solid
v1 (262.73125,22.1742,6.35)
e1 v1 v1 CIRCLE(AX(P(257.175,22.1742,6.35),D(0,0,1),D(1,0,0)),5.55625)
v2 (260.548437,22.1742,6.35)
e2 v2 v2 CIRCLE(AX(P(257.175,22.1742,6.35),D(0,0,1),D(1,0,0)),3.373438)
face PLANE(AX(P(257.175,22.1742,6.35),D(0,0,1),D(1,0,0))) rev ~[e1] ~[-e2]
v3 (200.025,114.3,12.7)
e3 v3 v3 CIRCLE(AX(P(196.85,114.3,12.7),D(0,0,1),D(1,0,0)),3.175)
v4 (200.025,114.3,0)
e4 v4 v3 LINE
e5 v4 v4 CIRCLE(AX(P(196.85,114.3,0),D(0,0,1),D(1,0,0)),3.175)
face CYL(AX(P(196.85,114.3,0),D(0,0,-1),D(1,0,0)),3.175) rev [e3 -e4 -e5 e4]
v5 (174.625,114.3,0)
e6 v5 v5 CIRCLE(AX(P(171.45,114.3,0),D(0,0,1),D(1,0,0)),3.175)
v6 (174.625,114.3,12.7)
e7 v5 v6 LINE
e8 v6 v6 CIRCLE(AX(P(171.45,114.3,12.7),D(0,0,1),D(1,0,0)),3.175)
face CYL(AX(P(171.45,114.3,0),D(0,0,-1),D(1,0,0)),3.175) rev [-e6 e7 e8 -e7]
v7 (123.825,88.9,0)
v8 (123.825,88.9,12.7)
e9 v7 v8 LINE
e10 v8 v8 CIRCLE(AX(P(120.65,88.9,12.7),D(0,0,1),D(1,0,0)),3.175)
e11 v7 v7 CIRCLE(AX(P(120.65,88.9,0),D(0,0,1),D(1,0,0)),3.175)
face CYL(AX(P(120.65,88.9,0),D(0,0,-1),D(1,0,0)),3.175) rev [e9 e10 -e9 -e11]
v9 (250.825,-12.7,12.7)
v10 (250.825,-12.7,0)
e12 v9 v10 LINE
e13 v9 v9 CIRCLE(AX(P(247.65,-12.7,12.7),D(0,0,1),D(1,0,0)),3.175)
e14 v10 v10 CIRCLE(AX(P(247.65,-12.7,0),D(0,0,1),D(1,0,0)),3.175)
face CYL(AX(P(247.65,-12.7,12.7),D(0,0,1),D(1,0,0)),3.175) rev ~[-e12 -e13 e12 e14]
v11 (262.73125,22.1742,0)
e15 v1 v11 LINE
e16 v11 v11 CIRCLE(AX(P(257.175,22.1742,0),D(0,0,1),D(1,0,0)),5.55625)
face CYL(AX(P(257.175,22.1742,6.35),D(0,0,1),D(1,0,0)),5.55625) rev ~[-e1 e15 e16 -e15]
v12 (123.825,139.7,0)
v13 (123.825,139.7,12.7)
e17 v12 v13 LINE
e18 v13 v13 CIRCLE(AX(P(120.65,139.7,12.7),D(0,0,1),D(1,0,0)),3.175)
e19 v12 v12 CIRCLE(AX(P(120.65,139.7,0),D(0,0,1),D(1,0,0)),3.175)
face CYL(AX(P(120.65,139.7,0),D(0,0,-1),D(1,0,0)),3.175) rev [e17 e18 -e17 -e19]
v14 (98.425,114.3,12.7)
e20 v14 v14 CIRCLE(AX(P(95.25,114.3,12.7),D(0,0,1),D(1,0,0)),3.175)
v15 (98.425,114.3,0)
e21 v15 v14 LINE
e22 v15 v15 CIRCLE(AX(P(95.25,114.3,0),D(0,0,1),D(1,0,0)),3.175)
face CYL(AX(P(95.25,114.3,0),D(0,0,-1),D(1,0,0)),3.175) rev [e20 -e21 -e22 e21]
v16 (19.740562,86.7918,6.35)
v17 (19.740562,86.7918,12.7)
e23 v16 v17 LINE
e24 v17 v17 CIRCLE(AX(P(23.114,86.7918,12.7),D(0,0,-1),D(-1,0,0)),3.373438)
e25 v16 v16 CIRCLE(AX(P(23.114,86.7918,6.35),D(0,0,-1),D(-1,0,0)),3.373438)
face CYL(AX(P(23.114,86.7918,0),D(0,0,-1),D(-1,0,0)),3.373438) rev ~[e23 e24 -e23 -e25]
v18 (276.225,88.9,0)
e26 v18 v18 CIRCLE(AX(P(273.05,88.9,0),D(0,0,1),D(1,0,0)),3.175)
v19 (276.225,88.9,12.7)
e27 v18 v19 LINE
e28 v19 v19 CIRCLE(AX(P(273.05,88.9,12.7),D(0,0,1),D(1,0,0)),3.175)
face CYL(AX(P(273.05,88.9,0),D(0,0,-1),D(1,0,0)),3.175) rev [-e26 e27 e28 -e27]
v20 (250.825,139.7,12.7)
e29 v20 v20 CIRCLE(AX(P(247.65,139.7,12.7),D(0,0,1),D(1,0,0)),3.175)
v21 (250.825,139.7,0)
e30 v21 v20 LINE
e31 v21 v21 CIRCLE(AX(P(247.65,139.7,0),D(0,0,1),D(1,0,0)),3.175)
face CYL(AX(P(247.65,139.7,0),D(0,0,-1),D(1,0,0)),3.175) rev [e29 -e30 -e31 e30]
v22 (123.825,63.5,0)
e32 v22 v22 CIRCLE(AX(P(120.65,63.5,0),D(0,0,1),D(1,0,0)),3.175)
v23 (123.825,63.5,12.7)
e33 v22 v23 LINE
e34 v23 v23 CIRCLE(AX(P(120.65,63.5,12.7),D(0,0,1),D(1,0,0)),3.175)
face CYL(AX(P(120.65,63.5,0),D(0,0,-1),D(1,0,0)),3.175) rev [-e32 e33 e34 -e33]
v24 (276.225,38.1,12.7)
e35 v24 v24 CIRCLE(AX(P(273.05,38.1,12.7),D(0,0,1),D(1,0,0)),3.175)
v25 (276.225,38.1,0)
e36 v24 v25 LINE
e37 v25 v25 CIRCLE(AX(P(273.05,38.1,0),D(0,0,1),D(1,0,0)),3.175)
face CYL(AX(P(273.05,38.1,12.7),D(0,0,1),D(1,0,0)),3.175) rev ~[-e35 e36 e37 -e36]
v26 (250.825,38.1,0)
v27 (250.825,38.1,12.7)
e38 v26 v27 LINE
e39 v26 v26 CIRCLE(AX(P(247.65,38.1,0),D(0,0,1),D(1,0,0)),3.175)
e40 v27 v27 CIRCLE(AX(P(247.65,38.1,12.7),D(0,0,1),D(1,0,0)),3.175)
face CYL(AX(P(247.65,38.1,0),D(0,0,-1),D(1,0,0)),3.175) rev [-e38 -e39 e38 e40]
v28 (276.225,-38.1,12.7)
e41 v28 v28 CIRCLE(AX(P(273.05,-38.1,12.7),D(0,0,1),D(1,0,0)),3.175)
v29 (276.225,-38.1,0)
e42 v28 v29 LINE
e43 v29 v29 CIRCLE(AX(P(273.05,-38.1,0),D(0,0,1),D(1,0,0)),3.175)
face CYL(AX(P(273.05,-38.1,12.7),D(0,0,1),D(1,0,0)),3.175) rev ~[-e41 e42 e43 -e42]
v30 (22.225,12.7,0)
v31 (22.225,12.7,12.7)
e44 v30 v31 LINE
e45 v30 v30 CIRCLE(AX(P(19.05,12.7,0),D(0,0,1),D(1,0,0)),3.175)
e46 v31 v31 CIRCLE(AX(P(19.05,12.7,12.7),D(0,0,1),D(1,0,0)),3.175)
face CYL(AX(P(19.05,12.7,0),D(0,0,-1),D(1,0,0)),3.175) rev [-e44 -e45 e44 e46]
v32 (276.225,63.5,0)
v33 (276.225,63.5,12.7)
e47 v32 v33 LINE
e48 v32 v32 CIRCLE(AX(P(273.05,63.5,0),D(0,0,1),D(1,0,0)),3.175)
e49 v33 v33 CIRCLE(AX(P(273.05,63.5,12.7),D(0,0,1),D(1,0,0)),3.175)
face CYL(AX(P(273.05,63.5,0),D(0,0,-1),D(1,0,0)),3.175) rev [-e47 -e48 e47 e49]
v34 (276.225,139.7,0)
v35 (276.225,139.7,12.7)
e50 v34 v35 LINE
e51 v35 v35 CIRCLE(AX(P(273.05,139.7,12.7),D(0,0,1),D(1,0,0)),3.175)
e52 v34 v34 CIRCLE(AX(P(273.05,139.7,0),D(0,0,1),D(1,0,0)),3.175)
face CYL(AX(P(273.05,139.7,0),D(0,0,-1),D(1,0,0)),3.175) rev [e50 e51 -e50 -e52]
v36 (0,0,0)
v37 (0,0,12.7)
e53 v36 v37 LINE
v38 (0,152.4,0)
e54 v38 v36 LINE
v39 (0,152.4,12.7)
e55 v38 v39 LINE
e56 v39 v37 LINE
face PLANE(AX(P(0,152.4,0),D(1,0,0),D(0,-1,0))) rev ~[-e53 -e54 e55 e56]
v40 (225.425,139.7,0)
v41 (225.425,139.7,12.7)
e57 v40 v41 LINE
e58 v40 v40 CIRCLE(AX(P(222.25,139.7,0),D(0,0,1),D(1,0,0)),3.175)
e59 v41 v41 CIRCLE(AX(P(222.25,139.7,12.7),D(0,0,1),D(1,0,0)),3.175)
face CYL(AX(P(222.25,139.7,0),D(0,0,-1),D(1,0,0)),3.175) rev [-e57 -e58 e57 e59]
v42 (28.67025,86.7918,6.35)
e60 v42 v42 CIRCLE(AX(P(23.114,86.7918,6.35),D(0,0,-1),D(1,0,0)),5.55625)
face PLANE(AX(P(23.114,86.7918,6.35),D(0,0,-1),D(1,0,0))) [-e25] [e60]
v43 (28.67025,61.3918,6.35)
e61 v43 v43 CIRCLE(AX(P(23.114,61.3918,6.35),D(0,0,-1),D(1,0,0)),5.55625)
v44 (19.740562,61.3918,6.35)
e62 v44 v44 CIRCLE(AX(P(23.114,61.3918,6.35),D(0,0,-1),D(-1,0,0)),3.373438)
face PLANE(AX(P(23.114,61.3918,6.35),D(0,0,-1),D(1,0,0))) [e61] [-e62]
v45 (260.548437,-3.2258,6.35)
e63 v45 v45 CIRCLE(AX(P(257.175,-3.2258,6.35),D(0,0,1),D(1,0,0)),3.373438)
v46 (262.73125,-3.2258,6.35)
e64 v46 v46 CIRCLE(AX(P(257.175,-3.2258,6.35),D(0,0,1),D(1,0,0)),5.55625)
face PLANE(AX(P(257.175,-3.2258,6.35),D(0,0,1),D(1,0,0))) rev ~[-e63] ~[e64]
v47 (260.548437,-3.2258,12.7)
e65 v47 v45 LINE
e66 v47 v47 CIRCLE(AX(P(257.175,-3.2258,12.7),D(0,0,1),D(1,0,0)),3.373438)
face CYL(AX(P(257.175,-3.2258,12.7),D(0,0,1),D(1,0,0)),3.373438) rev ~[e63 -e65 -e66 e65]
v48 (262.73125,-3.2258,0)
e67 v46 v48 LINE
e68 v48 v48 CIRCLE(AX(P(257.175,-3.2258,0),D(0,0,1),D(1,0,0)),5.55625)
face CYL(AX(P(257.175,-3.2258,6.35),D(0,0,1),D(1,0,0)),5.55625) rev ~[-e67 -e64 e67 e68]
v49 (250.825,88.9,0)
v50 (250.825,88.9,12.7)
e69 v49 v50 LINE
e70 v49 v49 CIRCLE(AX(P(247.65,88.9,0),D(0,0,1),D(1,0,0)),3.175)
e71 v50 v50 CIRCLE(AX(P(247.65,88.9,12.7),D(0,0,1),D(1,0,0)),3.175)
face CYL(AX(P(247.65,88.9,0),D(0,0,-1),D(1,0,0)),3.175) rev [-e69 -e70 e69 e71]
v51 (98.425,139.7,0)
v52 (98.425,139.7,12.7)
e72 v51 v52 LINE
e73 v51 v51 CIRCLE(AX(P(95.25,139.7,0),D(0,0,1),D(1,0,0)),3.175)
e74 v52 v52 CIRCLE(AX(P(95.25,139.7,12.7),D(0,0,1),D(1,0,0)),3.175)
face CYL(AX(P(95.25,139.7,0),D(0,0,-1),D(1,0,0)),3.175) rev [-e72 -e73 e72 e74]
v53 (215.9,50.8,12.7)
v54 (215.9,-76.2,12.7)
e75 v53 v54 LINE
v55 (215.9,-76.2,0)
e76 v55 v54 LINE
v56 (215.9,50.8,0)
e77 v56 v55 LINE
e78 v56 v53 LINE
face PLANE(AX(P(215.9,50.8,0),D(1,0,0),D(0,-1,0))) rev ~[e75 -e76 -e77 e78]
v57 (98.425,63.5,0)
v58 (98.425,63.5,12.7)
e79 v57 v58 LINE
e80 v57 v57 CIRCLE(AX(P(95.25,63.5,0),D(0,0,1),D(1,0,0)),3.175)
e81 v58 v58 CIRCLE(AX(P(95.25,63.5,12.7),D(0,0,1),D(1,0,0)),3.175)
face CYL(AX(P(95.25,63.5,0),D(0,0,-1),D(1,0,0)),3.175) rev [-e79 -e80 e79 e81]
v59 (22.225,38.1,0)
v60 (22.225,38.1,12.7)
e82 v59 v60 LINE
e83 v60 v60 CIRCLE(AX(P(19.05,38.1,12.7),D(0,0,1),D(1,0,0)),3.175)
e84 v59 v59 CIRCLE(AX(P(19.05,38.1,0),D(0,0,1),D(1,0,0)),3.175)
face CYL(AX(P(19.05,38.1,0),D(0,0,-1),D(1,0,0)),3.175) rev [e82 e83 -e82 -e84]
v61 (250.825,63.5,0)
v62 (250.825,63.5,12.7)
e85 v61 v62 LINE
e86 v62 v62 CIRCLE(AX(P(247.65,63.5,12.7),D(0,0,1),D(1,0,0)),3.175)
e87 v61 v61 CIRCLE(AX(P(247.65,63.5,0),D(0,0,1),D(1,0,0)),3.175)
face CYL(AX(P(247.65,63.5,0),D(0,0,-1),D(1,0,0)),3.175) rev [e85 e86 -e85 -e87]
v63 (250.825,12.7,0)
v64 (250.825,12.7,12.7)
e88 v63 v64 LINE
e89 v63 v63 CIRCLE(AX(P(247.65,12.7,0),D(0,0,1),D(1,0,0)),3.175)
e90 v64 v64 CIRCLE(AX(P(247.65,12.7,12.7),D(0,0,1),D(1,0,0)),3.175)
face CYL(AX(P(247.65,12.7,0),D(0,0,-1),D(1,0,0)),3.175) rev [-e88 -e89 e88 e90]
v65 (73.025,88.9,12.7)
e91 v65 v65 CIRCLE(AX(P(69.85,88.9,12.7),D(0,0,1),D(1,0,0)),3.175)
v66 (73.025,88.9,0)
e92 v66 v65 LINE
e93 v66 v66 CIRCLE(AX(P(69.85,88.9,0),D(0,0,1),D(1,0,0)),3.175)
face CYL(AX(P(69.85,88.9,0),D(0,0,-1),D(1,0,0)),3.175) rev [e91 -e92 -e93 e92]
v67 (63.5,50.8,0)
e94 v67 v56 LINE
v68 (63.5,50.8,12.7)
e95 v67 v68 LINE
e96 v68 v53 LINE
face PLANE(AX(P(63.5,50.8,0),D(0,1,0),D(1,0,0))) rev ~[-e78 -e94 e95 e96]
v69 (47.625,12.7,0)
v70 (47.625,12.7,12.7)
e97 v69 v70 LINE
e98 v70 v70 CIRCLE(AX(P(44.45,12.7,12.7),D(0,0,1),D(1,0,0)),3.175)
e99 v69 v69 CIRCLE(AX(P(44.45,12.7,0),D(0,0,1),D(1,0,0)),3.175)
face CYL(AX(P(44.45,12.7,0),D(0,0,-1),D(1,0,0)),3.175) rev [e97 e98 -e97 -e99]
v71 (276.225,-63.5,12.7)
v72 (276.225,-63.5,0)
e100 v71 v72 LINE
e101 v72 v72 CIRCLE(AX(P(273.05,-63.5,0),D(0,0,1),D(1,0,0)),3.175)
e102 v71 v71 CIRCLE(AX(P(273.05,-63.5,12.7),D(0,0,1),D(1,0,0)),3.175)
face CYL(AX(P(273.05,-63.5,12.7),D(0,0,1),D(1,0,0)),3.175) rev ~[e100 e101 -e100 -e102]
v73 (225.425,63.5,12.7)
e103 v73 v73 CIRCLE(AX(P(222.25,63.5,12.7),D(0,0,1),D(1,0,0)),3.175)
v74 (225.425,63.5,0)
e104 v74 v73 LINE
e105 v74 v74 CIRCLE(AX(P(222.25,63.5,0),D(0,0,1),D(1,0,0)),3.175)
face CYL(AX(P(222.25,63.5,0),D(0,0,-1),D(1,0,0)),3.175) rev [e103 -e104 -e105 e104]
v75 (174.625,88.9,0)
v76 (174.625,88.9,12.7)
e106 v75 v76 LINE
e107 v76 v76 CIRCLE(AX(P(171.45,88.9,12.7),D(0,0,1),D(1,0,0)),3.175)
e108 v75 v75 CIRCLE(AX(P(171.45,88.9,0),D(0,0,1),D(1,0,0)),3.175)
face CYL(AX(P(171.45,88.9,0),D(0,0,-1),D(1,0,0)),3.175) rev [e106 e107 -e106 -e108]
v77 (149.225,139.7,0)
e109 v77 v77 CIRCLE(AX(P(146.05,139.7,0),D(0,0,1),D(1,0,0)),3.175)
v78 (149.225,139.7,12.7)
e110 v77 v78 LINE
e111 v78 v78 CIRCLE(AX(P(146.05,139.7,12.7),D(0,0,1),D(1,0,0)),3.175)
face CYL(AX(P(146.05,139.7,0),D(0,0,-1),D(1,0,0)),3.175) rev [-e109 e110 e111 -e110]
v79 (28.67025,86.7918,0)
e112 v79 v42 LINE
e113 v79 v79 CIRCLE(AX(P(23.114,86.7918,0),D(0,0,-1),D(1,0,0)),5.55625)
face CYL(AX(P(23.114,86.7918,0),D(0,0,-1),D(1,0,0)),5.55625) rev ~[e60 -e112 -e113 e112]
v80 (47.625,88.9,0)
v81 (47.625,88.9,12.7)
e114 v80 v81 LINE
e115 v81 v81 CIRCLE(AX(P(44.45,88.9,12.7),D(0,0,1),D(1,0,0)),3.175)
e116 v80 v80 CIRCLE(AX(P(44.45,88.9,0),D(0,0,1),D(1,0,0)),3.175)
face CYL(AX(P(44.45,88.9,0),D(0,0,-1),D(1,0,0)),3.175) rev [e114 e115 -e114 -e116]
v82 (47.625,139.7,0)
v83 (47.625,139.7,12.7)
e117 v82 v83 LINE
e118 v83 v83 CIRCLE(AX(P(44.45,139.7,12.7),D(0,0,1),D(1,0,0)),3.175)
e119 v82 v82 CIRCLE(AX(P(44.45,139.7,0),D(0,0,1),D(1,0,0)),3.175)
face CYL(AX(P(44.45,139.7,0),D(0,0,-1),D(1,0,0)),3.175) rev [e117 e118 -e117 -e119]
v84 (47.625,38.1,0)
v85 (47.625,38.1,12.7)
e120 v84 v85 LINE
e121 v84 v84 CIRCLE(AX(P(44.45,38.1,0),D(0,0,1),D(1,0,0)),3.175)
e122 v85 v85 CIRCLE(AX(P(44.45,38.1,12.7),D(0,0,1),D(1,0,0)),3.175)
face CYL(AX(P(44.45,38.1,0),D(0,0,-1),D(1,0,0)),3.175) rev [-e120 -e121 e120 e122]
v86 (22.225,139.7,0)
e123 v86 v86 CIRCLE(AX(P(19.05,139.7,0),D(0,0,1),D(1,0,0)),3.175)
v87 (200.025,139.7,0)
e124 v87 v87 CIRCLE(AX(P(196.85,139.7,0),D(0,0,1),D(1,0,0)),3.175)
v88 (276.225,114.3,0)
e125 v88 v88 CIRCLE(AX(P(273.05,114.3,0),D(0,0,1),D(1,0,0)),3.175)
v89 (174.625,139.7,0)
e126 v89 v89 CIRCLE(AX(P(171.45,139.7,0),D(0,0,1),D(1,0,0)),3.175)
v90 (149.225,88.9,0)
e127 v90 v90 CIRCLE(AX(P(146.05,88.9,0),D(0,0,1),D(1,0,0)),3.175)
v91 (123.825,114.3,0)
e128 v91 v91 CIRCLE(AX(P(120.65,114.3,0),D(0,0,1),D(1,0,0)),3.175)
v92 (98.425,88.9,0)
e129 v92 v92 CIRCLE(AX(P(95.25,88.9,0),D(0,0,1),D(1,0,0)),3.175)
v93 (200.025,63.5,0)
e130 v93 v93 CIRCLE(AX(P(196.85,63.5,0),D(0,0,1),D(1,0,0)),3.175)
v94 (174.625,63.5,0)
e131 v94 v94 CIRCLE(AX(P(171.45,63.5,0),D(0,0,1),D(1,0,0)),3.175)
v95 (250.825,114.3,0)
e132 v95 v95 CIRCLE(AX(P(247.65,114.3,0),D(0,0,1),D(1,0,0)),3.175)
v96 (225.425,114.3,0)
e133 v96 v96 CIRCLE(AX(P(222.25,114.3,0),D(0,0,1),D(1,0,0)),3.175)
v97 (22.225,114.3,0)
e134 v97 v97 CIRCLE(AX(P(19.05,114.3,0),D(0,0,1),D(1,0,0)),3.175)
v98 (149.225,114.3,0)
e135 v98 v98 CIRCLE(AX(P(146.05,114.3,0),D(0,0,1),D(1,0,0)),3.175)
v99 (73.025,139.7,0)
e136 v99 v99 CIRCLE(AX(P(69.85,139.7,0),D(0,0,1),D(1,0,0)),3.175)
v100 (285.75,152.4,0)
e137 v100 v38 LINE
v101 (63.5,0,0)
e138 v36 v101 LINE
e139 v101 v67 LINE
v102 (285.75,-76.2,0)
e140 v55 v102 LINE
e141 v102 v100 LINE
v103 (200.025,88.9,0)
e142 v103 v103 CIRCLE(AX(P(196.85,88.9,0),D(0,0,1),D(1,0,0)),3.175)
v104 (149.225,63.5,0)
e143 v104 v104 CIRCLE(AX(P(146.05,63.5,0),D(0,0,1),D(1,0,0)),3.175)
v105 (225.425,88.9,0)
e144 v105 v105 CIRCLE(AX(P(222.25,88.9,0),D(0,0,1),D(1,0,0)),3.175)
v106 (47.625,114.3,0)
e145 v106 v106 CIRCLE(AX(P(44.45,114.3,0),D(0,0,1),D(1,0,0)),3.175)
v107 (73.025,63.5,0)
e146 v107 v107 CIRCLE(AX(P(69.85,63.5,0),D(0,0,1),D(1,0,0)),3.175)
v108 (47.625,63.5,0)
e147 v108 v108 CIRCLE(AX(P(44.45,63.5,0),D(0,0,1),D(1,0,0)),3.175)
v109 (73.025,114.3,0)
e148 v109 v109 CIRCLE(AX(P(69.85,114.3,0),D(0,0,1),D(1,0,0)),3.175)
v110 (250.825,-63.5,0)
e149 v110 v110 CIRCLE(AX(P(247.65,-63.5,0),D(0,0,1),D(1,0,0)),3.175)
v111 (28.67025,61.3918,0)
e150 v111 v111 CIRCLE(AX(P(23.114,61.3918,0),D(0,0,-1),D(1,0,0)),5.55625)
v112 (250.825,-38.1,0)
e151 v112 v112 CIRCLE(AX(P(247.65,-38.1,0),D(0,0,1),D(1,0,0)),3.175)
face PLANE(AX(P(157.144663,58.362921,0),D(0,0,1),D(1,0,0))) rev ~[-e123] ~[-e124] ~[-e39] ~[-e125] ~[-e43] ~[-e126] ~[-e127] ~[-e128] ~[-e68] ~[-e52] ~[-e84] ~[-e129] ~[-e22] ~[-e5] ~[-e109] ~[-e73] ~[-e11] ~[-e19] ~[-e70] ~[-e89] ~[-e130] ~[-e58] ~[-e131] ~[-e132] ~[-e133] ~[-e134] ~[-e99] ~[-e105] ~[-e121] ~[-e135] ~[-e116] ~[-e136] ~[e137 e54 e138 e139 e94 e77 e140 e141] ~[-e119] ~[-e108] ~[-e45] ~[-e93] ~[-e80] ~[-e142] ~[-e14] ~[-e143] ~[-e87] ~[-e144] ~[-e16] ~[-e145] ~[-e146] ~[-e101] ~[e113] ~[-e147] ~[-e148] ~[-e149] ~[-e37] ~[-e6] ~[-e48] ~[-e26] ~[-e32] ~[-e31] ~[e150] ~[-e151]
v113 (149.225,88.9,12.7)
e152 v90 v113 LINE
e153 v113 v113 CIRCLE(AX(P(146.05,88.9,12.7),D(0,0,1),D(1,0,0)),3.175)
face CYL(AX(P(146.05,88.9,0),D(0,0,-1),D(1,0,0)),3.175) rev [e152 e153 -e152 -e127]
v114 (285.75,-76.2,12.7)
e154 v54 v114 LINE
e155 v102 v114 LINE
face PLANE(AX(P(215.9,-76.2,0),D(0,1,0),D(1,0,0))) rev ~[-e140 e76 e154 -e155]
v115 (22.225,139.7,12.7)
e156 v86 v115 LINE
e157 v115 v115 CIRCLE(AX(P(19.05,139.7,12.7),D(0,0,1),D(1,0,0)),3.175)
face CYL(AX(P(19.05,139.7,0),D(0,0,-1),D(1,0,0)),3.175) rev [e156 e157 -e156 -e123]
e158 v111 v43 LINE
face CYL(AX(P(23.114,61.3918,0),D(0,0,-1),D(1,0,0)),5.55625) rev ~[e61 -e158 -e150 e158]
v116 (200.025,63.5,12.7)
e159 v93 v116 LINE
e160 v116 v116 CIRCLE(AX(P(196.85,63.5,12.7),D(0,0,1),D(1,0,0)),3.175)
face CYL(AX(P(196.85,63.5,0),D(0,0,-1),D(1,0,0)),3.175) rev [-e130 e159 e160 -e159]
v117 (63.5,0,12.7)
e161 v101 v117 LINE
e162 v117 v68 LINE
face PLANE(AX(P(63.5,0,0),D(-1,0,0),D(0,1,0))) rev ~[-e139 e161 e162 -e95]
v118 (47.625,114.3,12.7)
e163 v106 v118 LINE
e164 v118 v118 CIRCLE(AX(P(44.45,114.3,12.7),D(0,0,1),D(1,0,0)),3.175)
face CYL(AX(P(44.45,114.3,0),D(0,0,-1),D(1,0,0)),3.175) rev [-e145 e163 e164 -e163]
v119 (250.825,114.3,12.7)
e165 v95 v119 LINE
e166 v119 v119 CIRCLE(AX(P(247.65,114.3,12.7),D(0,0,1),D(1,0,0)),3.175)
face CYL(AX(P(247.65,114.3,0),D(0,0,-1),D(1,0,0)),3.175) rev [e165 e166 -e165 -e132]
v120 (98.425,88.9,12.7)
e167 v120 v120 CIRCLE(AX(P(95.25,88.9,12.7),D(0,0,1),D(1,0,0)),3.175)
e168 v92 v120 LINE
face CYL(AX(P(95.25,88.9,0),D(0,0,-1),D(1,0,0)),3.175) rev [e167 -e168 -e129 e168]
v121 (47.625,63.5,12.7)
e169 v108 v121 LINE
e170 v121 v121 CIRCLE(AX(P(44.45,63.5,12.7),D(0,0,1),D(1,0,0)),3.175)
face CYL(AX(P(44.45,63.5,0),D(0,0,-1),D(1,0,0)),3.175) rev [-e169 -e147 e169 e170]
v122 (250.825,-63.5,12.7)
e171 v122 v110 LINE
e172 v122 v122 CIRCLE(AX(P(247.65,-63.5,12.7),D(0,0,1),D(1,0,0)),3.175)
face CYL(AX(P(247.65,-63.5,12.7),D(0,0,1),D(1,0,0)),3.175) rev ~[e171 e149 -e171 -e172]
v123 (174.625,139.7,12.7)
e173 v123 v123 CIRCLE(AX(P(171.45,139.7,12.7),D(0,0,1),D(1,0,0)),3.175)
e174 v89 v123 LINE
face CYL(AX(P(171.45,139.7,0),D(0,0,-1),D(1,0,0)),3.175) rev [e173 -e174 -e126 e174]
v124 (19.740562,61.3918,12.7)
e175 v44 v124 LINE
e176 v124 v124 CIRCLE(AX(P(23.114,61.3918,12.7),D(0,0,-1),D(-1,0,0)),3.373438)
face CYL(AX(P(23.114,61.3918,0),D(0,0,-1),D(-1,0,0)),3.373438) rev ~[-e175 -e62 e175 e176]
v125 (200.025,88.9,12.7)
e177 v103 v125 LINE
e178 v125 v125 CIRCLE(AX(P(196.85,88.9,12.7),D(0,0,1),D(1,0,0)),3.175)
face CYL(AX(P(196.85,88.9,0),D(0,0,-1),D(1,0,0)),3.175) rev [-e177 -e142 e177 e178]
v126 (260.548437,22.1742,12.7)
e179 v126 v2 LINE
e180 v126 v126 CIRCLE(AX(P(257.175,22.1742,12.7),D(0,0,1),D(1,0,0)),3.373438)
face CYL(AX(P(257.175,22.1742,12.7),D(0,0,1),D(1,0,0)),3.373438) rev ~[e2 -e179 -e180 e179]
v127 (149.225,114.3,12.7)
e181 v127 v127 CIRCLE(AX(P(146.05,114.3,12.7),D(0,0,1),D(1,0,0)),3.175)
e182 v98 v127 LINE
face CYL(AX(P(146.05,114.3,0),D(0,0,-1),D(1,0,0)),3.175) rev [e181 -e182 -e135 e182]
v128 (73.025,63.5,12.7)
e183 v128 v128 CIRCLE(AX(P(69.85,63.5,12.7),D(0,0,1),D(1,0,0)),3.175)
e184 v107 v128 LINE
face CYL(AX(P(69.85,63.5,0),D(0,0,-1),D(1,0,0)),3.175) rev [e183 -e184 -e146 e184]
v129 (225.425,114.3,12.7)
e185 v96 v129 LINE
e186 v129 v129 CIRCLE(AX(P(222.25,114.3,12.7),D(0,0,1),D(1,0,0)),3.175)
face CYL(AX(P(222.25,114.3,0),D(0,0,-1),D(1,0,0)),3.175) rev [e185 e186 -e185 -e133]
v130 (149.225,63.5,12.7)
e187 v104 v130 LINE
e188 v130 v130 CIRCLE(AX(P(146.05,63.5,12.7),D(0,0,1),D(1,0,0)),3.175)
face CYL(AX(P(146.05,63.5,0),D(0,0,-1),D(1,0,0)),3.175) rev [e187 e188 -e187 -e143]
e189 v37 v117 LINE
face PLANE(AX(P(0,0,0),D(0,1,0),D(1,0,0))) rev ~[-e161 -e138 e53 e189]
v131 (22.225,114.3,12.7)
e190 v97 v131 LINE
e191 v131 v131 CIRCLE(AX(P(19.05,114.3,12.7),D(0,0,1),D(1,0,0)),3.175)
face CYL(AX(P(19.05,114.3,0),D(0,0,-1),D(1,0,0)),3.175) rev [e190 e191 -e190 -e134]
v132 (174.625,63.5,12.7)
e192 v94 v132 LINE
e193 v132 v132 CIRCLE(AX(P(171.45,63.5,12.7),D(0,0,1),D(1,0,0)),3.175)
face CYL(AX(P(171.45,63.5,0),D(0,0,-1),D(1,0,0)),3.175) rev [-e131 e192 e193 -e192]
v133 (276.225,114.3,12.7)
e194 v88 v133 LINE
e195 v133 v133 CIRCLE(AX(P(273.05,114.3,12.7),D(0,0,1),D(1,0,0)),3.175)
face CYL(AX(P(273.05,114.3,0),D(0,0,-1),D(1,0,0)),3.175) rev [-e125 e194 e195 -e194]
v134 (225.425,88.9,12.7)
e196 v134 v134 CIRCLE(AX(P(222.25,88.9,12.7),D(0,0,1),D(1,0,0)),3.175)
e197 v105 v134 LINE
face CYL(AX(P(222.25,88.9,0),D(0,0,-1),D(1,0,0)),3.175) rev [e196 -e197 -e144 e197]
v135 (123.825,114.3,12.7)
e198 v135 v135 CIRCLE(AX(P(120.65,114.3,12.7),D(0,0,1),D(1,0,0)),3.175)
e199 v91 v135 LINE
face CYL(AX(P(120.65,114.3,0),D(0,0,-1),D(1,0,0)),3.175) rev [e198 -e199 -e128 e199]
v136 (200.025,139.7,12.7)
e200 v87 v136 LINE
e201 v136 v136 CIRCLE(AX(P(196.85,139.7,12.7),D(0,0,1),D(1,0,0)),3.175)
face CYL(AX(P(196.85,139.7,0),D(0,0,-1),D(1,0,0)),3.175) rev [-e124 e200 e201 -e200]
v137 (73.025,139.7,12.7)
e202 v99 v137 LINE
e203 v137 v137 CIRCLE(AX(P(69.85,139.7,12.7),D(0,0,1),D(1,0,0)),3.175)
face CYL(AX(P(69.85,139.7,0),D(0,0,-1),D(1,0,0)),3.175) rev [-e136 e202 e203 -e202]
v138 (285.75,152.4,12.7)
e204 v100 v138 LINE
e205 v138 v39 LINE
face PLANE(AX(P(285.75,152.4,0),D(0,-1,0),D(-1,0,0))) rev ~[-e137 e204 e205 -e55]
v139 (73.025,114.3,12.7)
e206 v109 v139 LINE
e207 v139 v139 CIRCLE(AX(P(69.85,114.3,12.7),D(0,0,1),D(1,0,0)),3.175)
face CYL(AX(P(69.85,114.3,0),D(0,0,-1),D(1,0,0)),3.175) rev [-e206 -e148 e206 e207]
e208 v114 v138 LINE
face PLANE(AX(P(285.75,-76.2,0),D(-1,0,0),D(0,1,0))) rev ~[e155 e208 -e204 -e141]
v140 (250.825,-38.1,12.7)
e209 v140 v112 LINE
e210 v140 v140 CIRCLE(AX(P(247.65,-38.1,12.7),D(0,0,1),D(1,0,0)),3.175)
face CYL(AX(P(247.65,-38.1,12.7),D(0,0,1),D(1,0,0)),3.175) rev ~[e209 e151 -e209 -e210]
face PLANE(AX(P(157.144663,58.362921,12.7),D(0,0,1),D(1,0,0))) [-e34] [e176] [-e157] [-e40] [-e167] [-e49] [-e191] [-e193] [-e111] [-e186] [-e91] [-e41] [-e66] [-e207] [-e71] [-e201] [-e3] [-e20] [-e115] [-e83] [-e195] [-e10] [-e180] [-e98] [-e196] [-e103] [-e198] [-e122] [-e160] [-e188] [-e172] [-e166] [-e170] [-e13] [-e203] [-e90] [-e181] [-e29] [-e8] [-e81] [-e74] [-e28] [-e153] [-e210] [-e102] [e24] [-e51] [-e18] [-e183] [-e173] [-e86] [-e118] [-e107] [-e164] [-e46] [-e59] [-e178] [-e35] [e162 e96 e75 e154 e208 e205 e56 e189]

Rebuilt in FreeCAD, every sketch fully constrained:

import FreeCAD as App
import Part
import Sketcher
Q = App.Units.Quantity

doc = App.newDocument("Part")
body = doc.addObject("PartDesign::Body", "Body")

sketch1 = doc.addObject("Sketcher::SketchObject", "Sketch")
body.addObject(sketch1)
sketch1.AttachmentSupport = (doc.XY_Plane, [""])
sketch1.MapMode = "FlatFace"
sketch1.addGeometry([
    Part.LineSegment(App.Vector(0, 152.4, 0), App.Vector(0, 0, 0)),
    Part.LineSegment(App.Vector(0, 0, 0), App.Vector(63.5, 0, 0)),
    Part.LineSegment(App.Vector(63.5, 0, 0), App.Vector(63.5, 50.8, 0)),
    Part.LineSegment(App.Vector(63.5, 50.8, 0), App.Vector(215.9, 50.8, 0)),
    Part.LineSegment(App.Vector(215.9, 50.8, 0), App.Vector(215.9, -76.2, 0)),
    Part.LineSegment(App.Vector(215.9, -76.2, 0), App.Vector(285.75, -76.2, 0)),
    Part.LineSegment(App.Vector(285.75, -76.2, 0), App.Vector(285.75, 152.4, 0)),
    Part.LineSegment(App.Vector(285.75, 152.4, 0), App.Vector(0, 152.4, 0)),
    Part.Circle(App.Vector(19.05, 12.7, 0), App.Vector(0, 0, 1), 3.175),
    Part.Circle(App.Vector(44.45, 12.7, 0), App.Vector(0, 0, 1), 3.175),
    Part.Circle(App.Vector(19.05, 38.1, 0), App.Vector(0, 0, 1), 3.175),
    Part.Circle(App.Vector(44.45, 38.1, 0), App.Vector(0, 0, 1), 3.175),
    Part.Circle(App.Vector(44.45, 63.5, 0), App.Vector(0, 0, 1), 3.175),
    Part.Circle(App.Vector(69.85, 63.5, 0), App.Vector(0, 0, 1), 3.175),
    Part.Circle(App.Vector(95.25, 63.5, 0), App.Vector(0, 0, 1), 3.175),
    Part.Circle(App.Vector(120.65, 63.5, 0), App.Vector(0, 0, 1), 3.175),
    Part.Circle(App.Vector(247.65, 12.7, 0), App.Vector(0, 0, 1), 3.175),
    Part.Circle(App.Vector(247.65, 38.1, 0), App.Vector(0, 0, 1), 3.175),
    Part.Circle(App.Vector(146.05, 63.5, 0), App.Vector(0, 0, 1), 3.175),
    Part.Circle(App.Vector(171.45, 63.5, 0), App.Vector(0, 0, 1), 3.175),
    Part.Circle(App.Vector(196.85, 63.5, 0), App.Vector(0, 0, 1), 3.175),
    Part.Circle(App.Vector(222.25, 63.5, 0), App.Vector(0, 0, 1), 3.175),
    Part.Circle(App.Vector(247.65, 63.5, 0), App.Vector(0, 0, 1), 3.175),
    Part.Circle(App.Vector(273.05, 63.5, 0), App.Vector(0, 0, 1), 3.175),
    Part.Circle(App.Vector(44.45, 88.9, 0), App.Vector(0, 0, 1), 3.175),
    Part.Circle(App.Vector(69.85, 88.9, 0), App.Vector(0, 0, 1), 3.175),
    Part.Circle(App.Vector(95.25, 88.9, 0), App.Vector(0, 0, 1), 3.175),
    Part.Circle(App.Vector(120.65, 88.9, 0), App.Vector(0, 0, 1), 3.175),
    Part.Circle(App.Vector(19.05, 114.3, 0), App.Vector(0, 0, 1), 3.175),
    Part.Circle(App.Vector(44.45, 114.3, 0), App.Vector(0, 0, 1), 3.175),
    Part.Circle(App.Vector(69.85, 114.3, 0), App.Vector(0, 0, 1), 3.175),
    Part.Circle(App.Vector(19.05, 139.7, 0), App.Vector(0, 0, 1), 3.175),
    Part.Circle(App.Vector(44.45, 139.7, 0), App.Vector(0, 0, 1), 3.175),
    Part.Circle(App.Vector(69.85, 139.7, 0), App.Vector(0, 0, 1), 3.175),
    Part.Circle(App.Vector(95.25, 114.3, 0), App.Vector(0, 0, 1), 3.175),
    Part.Circle(App.Vector(120.65, 114.3, 0), App.Vector(0, 0, 1), 3.175),
    Part.Circle(App.Vector(95.25, 139.7, 0), App.Vector(0, 0, 1), 3.175),
    Part.Circle(App.Vector(120.65, 139.7, 0), App.Vector(0, 0, 1), 3.175),
    Part.Circle(App.Vector(146.05, 88.9, 0), App.Vector(0, 0, 1), 3.175),
    Part.Circle(App.Vector(171.45, 88.9, 0), App.Vector(0, 0, 1), 3.175),
    Part.Circle(App.Vector(196.85, 88.9, 0), App.Vector(0, 0, 1), 3.175),
    Part.Circle(App.Vector(222.25, 88.9, 0), App.Vector(0, 0, 1), 3.175),
    Part.Circle(App.Vector(247.65, 88.9, 0), App.Vector(0, 0, 1), 3.175),
    Part.Circle(App.Vector(273.05, 88.9, 0), App.Vector(0, 0, 1), 3.175),
    Part.Circle(App.Vector(146.05, 114.3, 0), App.Vector(0, 0, 1), 3.175),
    Part.Circle(App.Vector(171.45, 114.3, 0), App.Vector(0, 0, 1), 3.175),
    Part.Circle(App.Vector(196.85, 114.3, 0), App.Vector(0, 0, 1), 3.175),
    Part.Circle(App.Vector(146.05, 139.7, 0), App.Vector(0, 0, 1), 3.175),
    Part.Circle(App.Vector(171.45, 139.7, 0), App.Vector(0, 0, 1), 3.175),
    Part.Circle(App.Vector(196.85, 139.7, 0), App.Vector(0, 0, 1), 3.175),
    Part.Circle(App.Vector(222.25, 114.3, 0), App.Vector(0, 0, 1), 3.175),
    Part.Circle(App.Vector(247.65, 114.3, 0), App.Vector(0, 0, 1), 3.175),
    Part.Circle(App.Vector(273.05, 114.3, 0), App.Vector(0, 0, 1), 3.175),
    Part.Circle(App.Vector(222.25, 139.7, 0), App.Vector(0, 0, 1), 3.175),
    Part.Circle(App.Vector(247.65, 139.7, 0), App.Vector(0, 0, 1), 3.175),
    Part.Circle(App.Vector(273.05, 139.7, 0), App.Vector(0, 0, 1), 3.175),
], False)
sketch1.addConstraint([
    Sketcher.Constraint("Coincident", 0, 2, 1, 1),
    Sketcher.Constraint("Coincident", 1, 2, 2, 1),
    Sketcher.Constraint("Coincident", 2, 2, 3, 1),
    Sketcher.Constraint("Coincident", 3, 2, 4, 1),
    Sketcher.Constraint("Coincident", 4, 2, 5, 1),
    Sketcher.Constraint("Coincident", 5, 2, 6, 1),
    Sketcher.Constraint("Coincident", 6, 2, 7, 1),
    Sketcher.Constraint("Coincident", 7, 2, 0, 1),
    Sketcher.Constraint("Vertical", 0),
    Sketcher.Constraint("Horizontal", 1),
    Sketcher.Constraint("Vertical", 2),
    Sketcher.Constraint("Horizontal", 3),
    Sketcher.Constraint("Vertical", 4),
    Sketcher.Constraint("Horizontal", 5),
    Sketcher.Constraint("Vertical", 6),
    Sketcher.Constraint("Horizontal", 7),
    Sketcher.Constraint("Coincident", 0, 2, -1, 1),
    Sketcher.Constraint("Equal", 8, 9),
    Sketcher.Constraint("Equal", 9, 10),
    Sketcher.Constraint("Equal", 10, 11),
    Sketcher.Constraint("Equal", 11, 12),
    Sketcher.Constraint("Equal", 12, 13),
    Sketcher.Constraint("Equal", 13, 14),
    Sketcher.Constraint("Equal", 14, 15),
    Sketcher.Constraint("Equal", 15, 16),
    Sketcher.Constraint("Equal", 16, 17),
    Sketcher.Constraint("Equal", 17, 18),
    Sketcher.Constraint("Equal", 18, 19),
    Sketcher.Constraint("Equal", 19, 20),
    Sketcher.Constraint("Equal", 20, 21),
    Sketcher.Constraint("Equal", 21, 22),
    Sketcher.Constraint("Equal", 22, 23),
    Sketcher.Constraint("Equal", 23, 24),
    Sketcher.Constraint("Equal", 24, 25),
    Sketcher.Constraint("Equal", 25, 26),
    Sketcher.Constraint("Equal", 26, 27),
    Sketcher.Constraint("Equal", 27, 28),
    Sketcher.Constraint("Equal", 28, 29),
    Sketcher.Constraint("Equal", 29, 30),
    Sketcher.Constraint("Equal", 30, 31),
    Sketcher.Constraint("Equal", 31, 32),
    Sketcher.Constraint("Equal", 32, 33),
    Sketcher.Constraint("Equal", 33, 34),
    Sketcher.Constraint("Equal", 34, 35),
    Sketcher.Constraint("Equal", 35, 36),
    Sketcher.Constraint("Equal", 36, 37),
    Sketcher.Constraint("Equal", 37, 38),
    Sketcher.Constraint("Equal", 38, 39),
    Sketcher.Constraint("Equal", 39, 40),
    Sketcher.Constraint("Equal", 40, 41),
    Sketcher.Constraint("Equal", 41, 42),
    Sketcher.Constraint("Equal", 42, 43),
    Sketcher.Constraint("Equal", 43, 44),
    Sketcher.Constraint("Equal", 44, 45),
    Sketcher.Constraint("Equal", 45, 46),
    Sketcher.Constraint("Equal", 46, 47),
    Sketcher.Constraint("Equal", 47, 48),
    Sketcher.Constraint("Equal", 48, 49),
    Sketcher.Constraint("Equal", 49, 50),
    Sketcher.Constraint("Equal", 50, 51),
    Sketcher.Constraint("Equal", 51, 52),
    Sketcher.Constraint("Equal", 52, 53),
    Sketcher.Constraint("Equal", 53, 54),
    Sketcher.Constraint("Equal", 54, 55),
    Sketcher.Constraint("Horizontal", 8, 3, 9, 3),
    Sketcher.Constraint("Horizontal", 10, 3, 11, 3),
    Sketcher.Constraint("Horizontal", 12, 3, 13, 3),
    Sketcher.Constraint("Horizontal", 13, 3, 14, 3),
    Sketcher.Constraint("Horizontal", 14, 3, 15, 3),
    Sketcher.Constraint("Horizontal", 9, 3, 16, 3),
    Sketcher.Constraint("Horizontal", 11, 3, 17, 3),
    Sketcher.Constraint("Horizontal", 15, 3, 18, 3),
    Sketcher.Constraint("Horizontal", 18, 3, 19, 3),
    Sketcher.Constraint("Horizontal", 19, 3, 20, 3),
    Sketcher.Constraint("Horizontal", 20, 3, 21, 3),
    Sketcher.Constraint("Horizontal", 21, 3, 22, 3),
    Sketcher.Constraint("Horizontal", 22, 3, 23, 3),
    Sketcher.Constraint("Horizontal", 24, 3, 25, 3),
    Sketcher.Constraint("Horizontal", 25, 3, 26, 3),
    Sketcher.Constraint("Horizontal", 26, 3, 27, 3),
    Sketcher.Constraint("Horizontal", 28, 3, 29, 3),
    Sketcher.Constraint("Horizontal", 29, 3, 30, 3),
    Sketcher.Constraint("Horizontal", 31, 3, 32, 3),
    Sketcher.Constraint("Horizontal", 32, 3, 33, 3),
    Sketcher.Constraint("Horizontal", 30, 3, 34, 3),
    Sketcher.Constraint("Horizontal", 34, 3, 35, 3),
    Sketcher.Constraint("Horizontal", 33, 3, 36, 3),
    Sketcher.Constraint("Horizontal", 36, 3, 37, 3),
    Sketcher.Constraint("Horizontal", 27, 3, 38, 3),
    Sketcher.Constraint("Horizontal", 38, 3, 39, 3),
    Sketcher.Constraint("Horizontal", 39, 3, 40, 3),
    Sketcher.Constraint("Horizontal", 40, 3, 41, 3),
    Sketcher.Constraint("Horizontal", 41, 3, 42, 3),
    Sketcher.Constraint("Horizontal", 42, 3, 43, 3),
    Sketcher.Constraint("Horizontal", 35, 3, 44, 3),
    Sketcher.Constraint("Horizontal", 44, 3, 45, 3),
    Sketcher.Constraint("Horizontal", 45, 3, 46, 3),
    Sketcher.Constraint("Horizontal", 37, 3, 47, 3),
    Sketcher.Constraint("Horizontal", 47, 3, 48, 3),
    Sketcher.Constraint("Horizontal", 48, 3, 49, 3),
    Sketcher.Constraint("Horizontal", 46, 3, 50, 3),
    Sketcher.Constraint("Horizontal", 50, 3, 51, 3),
    Sketcher.Constraint("Horizontal", 51, 3, 52, 3),
    Sketcher.Constraint("Horizontal", 49, 3, 53, 3),
    Sketcher.Constraint("Horizontal", 53, 3, 54, 3),
    Sketcher.Constraint("Horizontal", 54, 3, 55, 3),
    Sketcher.Constraint("Vertical", 8, 3, 10, 3),
    Sketcher.Constraint("Vertical", 9, 3, 11, 3),
    Sketcher.Constraint("Vertical", 11, 3, 12, 3),
    Sketcher.Constraint("Vertical", 16, 3, 17, 3),
    Sketcher.Constraint("Vertical", 17, 3, 22, 3),
    Sketcher.Constraint("Vertical", 12, 3, 24, 3),
    Sketcher.Constraint("Vertical", 13, 3, 25, 3),
    Sketcher.Constraint("Vertical", 14, 3, 26, 3),
    Sketcher.Constraint("Vertical", 15, 3, 27, 3),
    Sketcher.Constraint("Vertical", 10, 3, 28, 3),
    Sketcher.Constraint("Vertical", 24, 3, 29, 3),
    Sketcher.Constraint("Vertical", 25, 3, 30, 3),
    Sketcher.Constraint("Vertical", 28, 3, 31, 3),
    Sketcher.Constraint("Vertical", 29, 3, 32, 3),
    Sketcher.Constraint("Vertical", 30, 3, 33, 3),
    Sketcher.Constraint("Vertical", 26, 3, 34, 3),
    Sketcher.Constraint("Vertical", 27, 3, 35, 3),
    Sketcher.Constraint("Vertical", 34, 3, 36, 3),
    Sketcher.Constraint("Vertical", 35, 3, 37, 3),
    Sketcher.Constraint("Vertical", 18, 3, 38, 3),
    Sketcher.Constraint("Vertical", 19, 3, 39, 3),
    Sketcher.Constraint("Vertical", 20, 3, 40, 3),
    Sketcher.Constraint("Vertical", 21, 3, 41, 3),
    Sketcher.Constraint("Vertical", 22, 3, 42, 3),
    Sketcher.Constraint("Vertical", 23, 3, 43, 3),
    Sketcher.Constraint("Vertical", 38, 3, 44, 3),
    Sketcher.Constraint("Vertical", 39, 3, 45, 3),
    Sketcher.Constraint("Vertical", 40, 3, 46, 3),
    Sketcher.Constraint("Vertical", 44, 3, 47, 3),
    Sketcher.Constraint("Vertical", 45, 3, 48, 3),
    Sketcher.Constraint("Vertical", 46, 3, 49, 3),
    Sketcher.Constraint("Vertical", 41, 3, 50, 3),
    Sketcher.Constraint("Vertical", 42, 3, 51, 3),
    Sketcher.Constraint("Vertical", 43, 3, 52, 3),
    Sketcher.Constraint("Vertical", 50, 3, 53, 3),
    Sketcher.Constraint("Vertical", 51, 3, 54, 3),
    Sketcher.Constraint("Vertical", 52, 3, 55, 3),
    Sketcher.Constraint("Equal", 3, 0),
    Sketcher.Constraint("Diameter", 8, Q("0.25 in")),
    Sketcher.Constraint("DistanceX", 3, 1, 3, 2, Q("6 in")),
    Sketcher.Constraint("DistanceY", 2, 1, 2, 2, Q("2 in")),
    Sketcher.Constraint("DistanceY", 4, 2, 4, 1, Q("5 in")),
    Sketcher.Constraint("DistanceX", 1, 1, 1, 2, Q("2.5 in")),
    Sketcher.Constraint("DistanceX", 8, 3, 9, 3, Q("1 in")),
    Sketcher.Constraint("DistanceY", 8, 3, 10, 3, Q("1 in")),
    Sketcher.Constraint("DistanceY", 11, 3, 12, 3, Q("1 in")),
    Sketcher.Constraint("DistanceX", 12, 3, 13, 3, Q("1 in")),
    Sketcher.Constraint("DistanceX", 13, 3, 14, 3, Q("1 in")),
    Sketcher.Constraint("DistanceX", 14, 3, 15, 3, Q("1 in")),
    Sketcher.Constraint("DistanceX", 15, 3, 16, 3, Q("5 in")),
    Sketcher.Constraint("DistanceX", 15, 3, 18, 3, Q("1 in")),
    Sketcher.Constraint("DistanceX", 18, 3, 19, 3, Q("1 in")),
    Sketcher.Constraint("DistanceX", 19, 3, 20, 3, Q("1 in")),
    Sketcher.Constraint("DistanceX", 20, 3, 21, 3, Q("1 in")),
    Sketcher.Constraint("DistanceX", 22, 3, 23, 3, Q("1 in")),
    Sketcher.Constraint("DistanceY", 12, 3, 24, 3, Q("1 in")),
    Sketcher.Constraint("DistanceY", 24, 3, 28, 3, Q("1 in")),
    Sketcher.Constraint("DistanceY", 28, 3, 31, 3, Q("1 in")),
    Sketcher.Constraint("DistanceX", 5, 1, 5, 2, Q("2.75 in")),
    Sketcher.Constraint("DistanceY", -1, 1, 8, 3, Q("0.5 in")),
    Sketcher.Constraint("DistanceX", 16, 3, 5, 2, Q("1.5 in")),
])
pad1 = doc.addObject("PartDesign::Pad", "Pad")
body.addObject(pad1)
pad1.Profile = sketch1
pad1.Length = Q("0.5 in")

sketch2 = doc.addObject("Sketcher::SketchObject", "Sketch001")
body.addObject(sketch2)
sketch2.AttachmentSupport = (doc.XY_Plane, [""])
sketch2.MapMode = "FlatFace"
sketch2.AttachmentOffset = App.Placement(App.Vector(0, 0, 0.5 * 25.4), App.Rotation())
sketch2.addGeometry([
    Part.Circle(App.Vector(247.65, -12.7, 0), App.Vector(0, 0, 1), 3.175),
    Part.Circle(App.Vector(247.65, -38.1, 0), App.Vector(0, 0, 1), 3.175),
    Part.Circle(App.Vector(247.65, -63.5, 0), App.Vector(0, 0, 1), 3.175),
    Part.Circle(App.Vector(273.05, -38.1, 0), App.Vector(0, 0, 1), 3.175),
    Part.Circle(App.Vector(273.05, -63.5, 0), App.Vector(0, 0, 1), 3.175),
    Part.Circle(App.Vector(273.05, 38.1, 0), App.Vector(0, 0, 1), 3.175),
], False)
sketch2.addConstraint([
    Sketcher.Constraint("Equal", 0, 1),
    Sketcher.Constraint("Equal", 1, 2),
    Sketcher.Constraint("Equal", 2, 3),
    Sketcher.Constraint("Equal", 3, 4),
    Sketcher.Constraint("Equal", 4, 5),
    Sketcher.Constraint("Symmetric", 3, 3, 5, 3, -1),
    Sketcher.Constraint("Horizontal", 1, 3, 3, 3),
    Sketcher.Constraint("Horizontal", 2, 3, 4, 3),
    Sketcher.Constraint("Vertical", 0, 3, 1, 3),
    Sketcher.Constraint("Vertical", 1, 3, 2, 3),
    Sketcher.Constraint("Vertical", 3, 3, 4, 3),
    Sketcher.Constraint("Diameter", 0, Q("0.25 in")),
    Sketcher.Constraint("DistanceY", 1, 3, 0, 3, Q("1 in")),
    Sketcher.Constraint("DistanceY", 2, 3, 1, 3, Q("1 in")),
    Sketcher.Constraint("DistanceX", 1, 3, 3, 3, Q("1 in")),
    Sketcher.Constraint("DistanceY", 0, 3, 5, 3, Q("2 in")),
    Sketcher.Constraint("DistanceX", -1, 1, 0, 3, Q("9.75 in")),
])
pocket1 = doc.addObject("PartDesign::Pocket", "Pocket")
body.addObject(pocket1)
pocket1.Profile = sketch2
pocket1.Length = Q("0.5 in")

sketch3 = doc.addObject("Sketcher::SketchObject", "Sketch002")
body.addObject(sketch3)
sketch3.AttachmentSupport = (doc.XY_Plane, [""])
sketch3.MapMode = "FlatFace"
sketch3.AttachmentOffset = App.Placement(App.Vector(0, 0, 0.5 * 25.4), App.Rotation())
sketch3.addGeometry([
    Part.Circle(App.Vector(257.175, -3.2258, 0), App.Vector(0, 0, 1), 3.373438),
    Part.Circle(App.Vector(257.175, 22.1742, 0), App.Vector(0, 0, 1), 3.373438),
], False)
sketch3.addConstraint([
    Sketcher.Constraint("Equal", 0, 1),
    Sketcher.Constraint("Vertical", 0, 3, 1, 3),
    Sketcher.Constraint("Diameter", 0, Q("0.265625 in")),
    Sketcher.Constraint("DistanceY", 0, 3, 1, 3, Q("1 in")),
    Sketcher.Constraint("DistanceX", -1, 1, 0, 3, Q("10.125 in")),
    Sketcher.Constraint("DistanceY", 0, 3, -1, 1, Q("0.127 in")),
])
pocket2 = doc.addObject("PartDesign::Pocket", "Pocket001")
body.addObject(pocket2)
pocket2.Profile = sketch3
pocket2.Length = Q("0.5 in")

sketch4 = doc.addObject("Sketcher::SketchObject", "Sketch003")
body.addObject(sketch4)
sketch4.AttachmentSupport = (doc.XY_Plane, [""])
sketch4.MapMode = "FlatFace"
sketch4.AttachmentOffset = App.Placement(App.Vector(0, 0, 0.25 * 25.4), App.Rotation())
sketch4.addGeometry([
    Part.Circle(App.Vector(257.175, -3.2258, 0), App.Vector(0, 0, 1), 5.55625),
    Part.Circle(App.Vector(257.175, -3.2258, 0), App.Vector(0, 0, 1), 3.373438),
    Part.Circle(App.Vector(257.175, 22.1742, 0), App.Vector(0, 0, 1), 5.55625),
    Part.Circle(App.Vector(257.175, 22.1742, 0), App.Vector(0, 0, 1), 3.373438),
], False)
sketch4.addConstraint([
    Sketcher.Constraint("Coincident", 1, 3, 0, 3),
    Sketcher.Constraint("Coincident", 3, 3, 2, 3),
    Sketcher.Constraint("Equal", 0, 2),
    Sketcher.Constraint("Equal", 1, 3),
    Sketcher.Constraint("Vertical", 1, 3, 2, 3),
    Sketcher.Constraint("Diameter", 0, Q("0.4375 in")),
    Sketcher.Constraint("Diameter", 1, Q("0.265625 in")),
    Sketcher.Constraint("DistanceY", 0, 3, 2, 3, Q("1 in")),
    Sketcher.Constraint("DistanceX", -1, 1, 0, 3, Q("10.125 in")),
    Sketcher.Constraint("DistanceY", 0, 3, -1, 1, Q("0.127 in")),
])
pocket3 = doc.addObject("PartDesign::Pocket", "Pocket002")
body.addObject(pocket3)
pocket3.Profile = sketch4
pocket3.Length = Q("0.25 in")

sketch5 = doc.addObject("Sketcher::SketchObject", "Sketch004")
body.addObject(sketch5)
sketch5.AttachmentSupport = (doc.XY_Plane, [""])
sketch5.MapMode = "FlatFace"
sketch5.addGeometry([
    Part.Circle(App.Vector(23.114, 61.3918, 0), App.Vector(0, 0, 1), 3.373438),
    Part.Circle(App.Vector(23.114, 86.7918, 0), App.Vector(0, 0, 1), 3.373438),
], False)
sketch5.addConstraint([
    Sketcher.Constraint("Equal", 0, 1),
    Sketcher.Constraint("Vertical", 0, 3, 1, 3),
    Sketcher.Constraint("Diameter", 0, Q("0.265625 in")),
    Sketcher.Constraint("DistanceY", 0, 3, 1, 3, Q("1 in")),
    Sketcher.Constraint("DistanceX", -1, 1, 0, 3, Q("0.91 in")),
    Sketcher.Constraint("DistanceY", -1, 1, 0, 3, Q("2.417 in")),
])
pocket4 = doc.addObject("PartDesign::Pocket", "Pocket003")
body.addObject(pocket4)
pocket4.Profile = sketch5
pocket4.Length = Q("0.5 in")
pocket4.Reversed = True

sketch6 = doc.addObject("Sketcher::SketchObject", "Sketch005")
body.addObject(sketch6)
sketch6.AttachmentSupport = (doc.XY_Plane, [""])
sketch6.MapMode = "FlatFace"
sketch6.addGeometry([
    Part.Circle(App.Vector(23.114, 61.3918, 0), App.Vector(0, 0, 1), 5.55625),
    Part.Circle(App.Vector(23.114, 61.3918, 0), App.Vector(0, 0, 1), 3.373438),
    Part.Circle(App.Vector(23.114, 86.7918, 0), App.Vector(0, 0, 1), 5.55625),
    Part.Circle(App.Vector(23.114, 86.7918, 0), App.Vector(0, 0, 1), 3.373438),
], False)
sketch6.addConstraint([
    Sketcher.Constraint("Coincident", 1, 3, 0, 3),
    Sketcher.Constraint("Coincident", 3, 3, 2, 3),
    Sketcher.Constraint("Equal", 0, 2),
    Sketcher.Constraint("Equal", 1, 3),
    Sketcher.Constraint("Vertical", 1, 3, 2, 3),
    Sketcher.Constraint("Diameter", 0, Q("0.4375 in")),
    Sketcher.Constraint("Diameter", 1, Q("0.265625 in")),
    Sketcher.Constraint("DistanceY", 0, 3, 2, 3, Q("1 in")),
    Sketcher.Constraint("DistanceX", -1, 1, 0, 3, Q("0.91 in")),
    Sketcher.Constraint("DistanceY", -1, 1, 0, 3, Q("2.417 in")),
])
pocket5 = doc.addObject("PartDesign::Pocket", "Pocket004")
body.addObject(pocket5)
pocket5.Profile = sketch6
pocket5.Length = Q("0.25 in")
pocket5.Reversed = True

doc.recompute()
